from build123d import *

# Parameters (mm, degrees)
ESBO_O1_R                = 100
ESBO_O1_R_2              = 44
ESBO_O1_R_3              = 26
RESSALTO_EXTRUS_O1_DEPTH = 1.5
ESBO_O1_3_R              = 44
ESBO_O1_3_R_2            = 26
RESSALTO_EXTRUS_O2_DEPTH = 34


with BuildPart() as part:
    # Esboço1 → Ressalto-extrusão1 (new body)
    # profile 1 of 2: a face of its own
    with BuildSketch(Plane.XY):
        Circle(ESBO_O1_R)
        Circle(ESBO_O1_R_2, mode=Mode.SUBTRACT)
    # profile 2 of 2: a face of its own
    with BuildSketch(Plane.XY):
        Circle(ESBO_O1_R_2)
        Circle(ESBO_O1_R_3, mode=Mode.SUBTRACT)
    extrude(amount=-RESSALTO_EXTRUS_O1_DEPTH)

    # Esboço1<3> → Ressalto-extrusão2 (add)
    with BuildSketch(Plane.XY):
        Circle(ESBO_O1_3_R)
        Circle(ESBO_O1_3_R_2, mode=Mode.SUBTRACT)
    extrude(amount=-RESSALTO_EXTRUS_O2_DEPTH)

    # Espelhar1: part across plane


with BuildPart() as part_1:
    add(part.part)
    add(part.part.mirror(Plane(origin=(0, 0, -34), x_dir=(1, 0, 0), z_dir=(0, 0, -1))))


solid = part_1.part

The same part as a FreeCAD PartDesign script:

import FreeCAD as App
import Part
import Sketcher
Q = App.Units.Quantity

doc = App.newDocument("Part")
body = doc.addObject("PartDesign::Body", "Body")

# Sketch on XY plane
sketch1 = doc.addObject("Sketcher::SketchObject", "Sketch")
body.addObject(sketch1)
sketch1.AttachmentSupport = (doc.XY_Plane, [""])
sketch1.MapMode = "FlatFace"
sketch1.addGeometry(Part.Circle(App.Vector(0, 0, 0), App.Vector(0, 0, 1), 100), False)
sketch1.addGeometry(Part.Circle(App.Vector(0, 0, 0), App.Vector(0, 0, 1), 26), False)
sketch1.addConstraint(Sketcher.Constraint("Coincident", 0, 3, -1, 1))
sketch1.addConstraint(Sketcher.Constraint("Coincident", 1, 3, -1, 1))
sketch1.addConstraint(Sketcher.Constraint("Diameter", 0, Q("200 mm")))
sketch1.addConstraint(Sketcher.Constraint("Diameter", 1, Q("52 mm")))
pad1 = doc.addObject("PartDesign::Pad", "Pad")
body.addObject(pad1)
pad1.Profile = sketch1
pad1.Length = 1.5
pad1.Reversed = True

# Sketch on XY plane
sketch2 = doc.addObject("Sketcher::SketchObject", "Sketch001")
body.addObject(sketch2)
sketch2.AttachmentSupport = (doc.XY_Plane, [""])
sketch2.MapMode = "FlatFace"
sketch2.addGeometry(Part.Circle(App.Vector(0, 0, 0), App.Vector(0, 0, 1), 44), False)
sketch2.addGeometry(Part.Circle(App.Vector(0, 0, 0), App.Vector(0, 0, 1), 26), False)
sketch2.addConstraint(Sketcher.Constraint("Coincident", 0, 3, -1, 1))
sketch2.addConstraint(Sketcher.Constraint("Coincident", 1, 3, -1, 1))
sketch2.addConstraint(Sketcher.Constraint("Diameter", 0, Q("88 mm")))
sketch2.addConstraint(Sketcher.Constraint("Diameter", 1, Q("52 mm")))
pad2 = doc.addObject("PartDesign::Pad", "Pad001")
body.addObject(pad2)
pad2.Profile = sketch2
pad2.Length = 34
pad2.Reversed = True
body2 = doc.addObject("PartDesign::Body", "Body001")
doc.recompute()

body2.BaseFeature = body
doc.recompute()

mirroring = doc.addObject("Part::Mirroring", "Mirroring")
mirroring.Source = body
mirroring.Base = App.Vector(0, 0, -34)
mirroring.Normal = App.Vector(0, 0, -1)
body3 = doc.addObject("PartDesign::Body", "Body002")
body3.BaseFeature = mirroring
boolean = doc.addObject("PartDesign::Boolean", "Boolean")
body2.addObject(boolean)
boolean.Type = "Fuse"
boolean.addObjects([body3])
doc.recompute()
mirroring.Visibility = False

doc.recompute()
